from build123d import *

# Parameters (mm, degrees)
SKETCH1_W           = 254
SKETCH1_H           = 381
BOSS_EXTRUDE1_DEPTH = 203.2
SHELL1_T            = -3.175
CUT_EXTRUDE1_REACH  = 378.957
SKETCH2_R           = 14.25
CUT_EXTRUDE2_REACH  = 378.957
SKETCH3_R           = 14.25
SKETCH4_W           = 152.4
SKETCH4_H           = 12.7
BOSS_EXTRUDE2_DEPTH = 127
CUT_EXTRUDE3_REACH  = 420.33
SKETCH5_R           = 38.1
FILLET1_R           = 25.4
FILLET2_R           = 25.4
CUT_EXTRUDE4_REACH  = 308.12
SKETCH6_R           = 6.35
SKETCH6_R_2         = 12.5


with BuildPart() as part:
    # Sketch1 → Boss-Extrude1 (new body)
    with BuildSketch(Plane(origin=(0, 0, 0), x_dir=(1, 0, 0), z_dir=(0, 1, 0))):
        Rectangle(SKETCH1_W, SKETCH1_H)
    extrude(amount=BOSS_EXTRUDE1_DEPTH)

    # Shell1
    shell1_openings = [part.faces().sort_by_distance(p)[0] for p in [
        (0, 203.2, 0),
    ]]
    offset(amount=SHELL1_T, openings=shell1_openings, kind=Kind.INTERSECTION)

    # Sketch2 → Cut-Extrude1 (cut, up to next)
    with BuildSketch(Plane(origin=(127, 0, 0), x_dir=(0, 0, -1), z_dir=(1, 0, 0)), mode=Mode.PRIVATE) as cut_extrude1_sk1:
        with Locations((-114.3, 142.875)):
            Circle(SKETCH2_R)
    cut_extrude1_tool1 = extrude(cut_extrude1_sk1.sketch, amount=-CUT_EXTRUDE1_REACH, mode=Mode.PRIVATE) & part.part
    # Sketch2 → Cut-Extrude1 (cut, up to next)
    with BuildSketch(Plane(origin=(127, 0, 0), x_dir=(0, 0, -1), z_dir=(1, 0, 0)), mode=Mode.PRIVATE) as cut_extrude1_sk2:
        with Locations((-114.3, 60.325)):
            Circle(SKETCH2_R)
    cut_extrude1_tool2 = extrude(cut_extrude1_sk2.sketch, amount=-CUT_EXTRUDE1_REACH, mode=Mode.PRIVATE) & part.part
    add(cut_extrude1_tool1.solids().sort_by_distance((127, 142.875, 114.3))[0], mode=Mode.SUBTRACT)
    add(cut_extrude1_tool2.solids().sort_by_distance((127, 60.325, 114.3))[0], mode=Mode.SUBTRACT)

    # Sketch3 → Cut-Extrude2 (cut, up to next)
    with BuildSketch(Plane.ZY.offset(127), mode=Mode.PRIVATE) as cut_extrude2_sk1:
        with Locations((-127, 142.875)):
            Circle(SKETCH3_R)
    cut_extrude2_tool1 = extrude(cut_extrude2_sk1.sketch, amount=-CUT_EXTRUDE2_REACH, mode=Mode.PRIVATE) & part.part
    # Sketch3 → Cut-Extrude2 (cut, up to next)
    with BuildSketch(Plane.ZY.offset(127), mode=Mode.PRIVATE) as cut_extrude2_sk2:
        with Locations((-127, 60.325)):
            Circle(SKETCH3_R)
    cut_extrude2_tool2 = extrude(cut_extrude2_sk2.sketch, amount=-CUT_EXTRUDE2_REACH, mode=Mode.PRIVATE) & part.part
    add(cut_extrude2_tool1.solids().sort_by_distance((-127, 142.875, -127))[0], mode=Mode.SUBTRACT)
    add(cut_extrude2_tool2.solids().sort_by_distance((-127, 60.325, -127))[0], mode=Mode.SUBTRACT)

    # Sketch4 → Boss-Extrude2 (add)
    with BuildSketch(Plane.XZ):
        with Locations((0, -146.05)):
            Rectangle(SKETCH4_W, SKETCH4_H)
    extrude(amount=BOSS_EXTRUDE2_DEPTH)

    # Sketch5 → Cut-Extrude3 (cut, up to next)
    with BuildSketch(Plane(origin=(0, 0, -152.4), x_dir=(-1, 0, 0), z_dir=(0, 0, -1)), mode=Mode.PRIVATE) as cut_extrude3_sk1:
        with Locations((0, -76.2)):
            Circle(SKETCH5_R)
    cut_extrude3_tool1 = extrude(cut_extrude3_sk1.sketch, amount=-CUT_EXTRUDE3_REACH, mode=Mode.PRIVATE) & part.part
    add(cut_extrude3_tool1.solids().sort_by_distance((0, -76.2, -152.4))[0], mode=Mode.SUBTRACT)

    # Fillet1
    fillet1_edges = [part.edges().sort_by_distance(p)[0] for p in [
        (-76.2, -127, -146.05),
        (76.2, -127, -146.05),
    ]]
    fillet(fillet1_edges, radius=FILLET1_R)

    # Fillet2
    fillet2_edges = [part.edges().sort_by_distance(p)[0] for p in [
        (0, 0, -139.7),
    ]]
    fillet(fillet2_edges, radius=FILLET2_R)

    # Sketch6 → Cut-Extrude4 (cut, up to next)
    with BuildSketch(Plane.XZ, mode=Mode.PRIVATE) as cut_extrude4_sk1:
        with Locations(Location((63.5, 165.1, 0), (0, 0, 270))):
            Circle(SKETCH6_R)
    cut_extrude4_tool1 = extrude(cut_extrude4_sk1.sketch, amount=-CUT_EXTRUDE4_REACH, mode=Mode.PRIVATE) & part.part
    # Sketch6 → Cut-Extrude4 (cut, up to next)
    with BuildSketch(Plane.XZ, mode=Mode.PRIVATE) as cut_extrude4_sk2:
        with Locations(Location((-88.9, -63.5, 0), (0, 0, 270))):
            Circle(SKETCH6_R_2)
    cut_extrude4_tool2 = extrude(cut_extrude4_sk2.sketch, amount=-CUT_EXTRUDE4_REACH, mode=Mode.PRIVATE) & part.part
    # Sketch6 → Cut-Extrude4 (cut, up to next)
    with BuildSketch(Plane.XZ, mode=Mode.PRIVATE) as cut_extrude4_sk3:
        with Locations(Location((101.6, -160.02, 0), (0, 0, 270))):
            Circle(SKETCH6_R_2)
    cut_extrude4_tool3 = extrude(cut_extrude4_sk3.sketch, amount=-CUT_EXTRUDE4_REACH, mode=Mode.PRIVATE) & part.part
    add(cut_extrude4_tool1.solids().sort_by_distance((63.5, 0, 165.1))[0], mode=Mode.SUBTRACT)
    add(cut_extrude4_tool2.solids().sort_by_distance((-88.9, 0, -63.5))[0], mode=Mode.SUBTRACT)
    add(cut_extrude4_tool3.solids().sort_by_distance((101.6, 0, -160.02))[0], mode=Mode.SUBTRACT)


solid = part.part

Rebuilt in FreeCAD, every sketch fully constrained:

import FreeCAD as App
import Part
import Sketcher
Q = App.Units.Quantity


def edges_at(feature, points):
    """Names of the edges that pass closest to the given points."""
    edges = feature.Shape.Edges
    near = lambda p: min(range(len(edges)), key=lambda i: edges[i].distToShape(Part.Vertex(*p))[0])
    return sorted({f"Edge{near(p) + 1}" for p in points})


def faces_at(feature, points):
    """Names of the faces that lie closest to the given points."""
    faces = feature.Shape.Faces
    near = lambda p: min(range(len(faces)), key=lambda i: faces[i].distToShape(Part.Vertex(*p))[0])
    return sorted({f"Face{near(p) + 1}" for p in points})


def add_polygon(sketch, points):
    """Adds a closed chain of lines whose ends are joined by coincident constraints."""
    first, n = sketch.GeometryCount, len(points)
    for a, b in zip(points, points[1:] + points[:1]):
        sketch.addGeometry(Part.LineSegment(App.Vector(*a, 0), App.Vector(*b, 0)), False)
    for i in range(n):
        sketch.addConstraint(Sketcher.Constraint("Coincident", first + i, 2, first + (i + 1) % n, 1))

doc = App.newDocument("Part")
body = doc.addObject("PartDesign::Body", "Body")

# Sketch on XZ plane
sketch1 = body.newObject("Sketcher::SketchObject", "Sketch")
sketch1.AttachmentSupport = (doc.getObject("XZ_Plane"), [""])
sketch1.MapMode = "FlatFace"
add_polygon(sketch1, [(-127, -190), (-127, 190), (127, 190), (127, -190)])  # lines 0-3
sketch1.addConstraint([
    Sketcher.Constraint("Vertical", 0),
    Sketcher.Constraint("Horizontal", 1),
    Sketcher.Constraint("Vertical", 2),
    Sketcher.Constraint("Horizontal", 3),
    Sketcher.Constraint("Symmetric", 0, 2, 2, 2, -1, 1),
    Sketcher.Constraint("DistanceX", 1, 1, 1, 2, Q("10 in")),
    Sketcher.Constraint("DistanceY", 0, 1, 0, 2, Q("15 in")),
])
pad1 = body.newObject("PartDesign::Pad", "Pad")
pad1.Profile = sketch1
pad1.Length = Q("8 in")
pad1.Reversed = True
doc.recompute()

thickness = body.newObject("PartDesign::Thickness", "Thickness")
thickness.Base = (pad1, faces_at(pad1, [(0, 203.2, 0)]))
thickness.Value = Q("0.125 in")
thickness.Reversed = True
thickness.Join = "Intersection"

# Sketch on YZ plane
sketch2 = body.newObject("Sketcher::SketchObject", "Sketch001")
sketch2.AttachmentSupport = (doc.getObject("YZ_Plane"), [""])
sketch2.MapMode = "FlatFace"
sketch2.AttachmentOffset = App.Placement(App.Vector(0, 0, 5 * 25.4), App.Rotation())
sketch2.addGeometry(Part.Circle(App.Vector(143, 114, 0), App.Vector(0, 0, 1), 14), False)
sketch2.addConstraint([
    Sketcher.Constraint("DistanceY", -1, 1, 0, 3, Q("4.5 in")),
    Sketcher.Constraint("Diameter", 0, Q("28.5 mm")),
    Sketcher.Constraint("DistanceX", -1, 1, 0, 3, Q("5.625 in")),
])
pocket1 = body.newObject("PartDesign::Pocket", "Pocket")
pocket1.Profile = sketch2
pocket1.Type = "UpToFirst"

# Sketch on YZ plane
sketch3 = body.newObject("Sketcher::SketchObject", "Sketch002")
sketch3.AttachmentSupport = (doc.getObject("YZ_Plane"), [""])
sketch3.MapMode = "FlatFace"
sketch3.AttachmentOffset = App.Placement(App.Vector(0, 0, 5 * 25.4), App.Rotation())
sketch3.addGeometry(Part.Circle(App.Vector(60, 114, 0), App.Vector(0, 0, 1), 14), False)
sketch3.addConstraint([
    Sketcher.Constraint("DistanceY", -1, 1, 0, 3, Q("4.5 in")),
    Sketcher.Constraint("Diameter", 0, Q("28.5 mm")),
    Sketcher.Constraint("DistanceX", -1, 1, 0, 3, Q("2.375 in")),
])
pocket2 = body.newObject("PartDesign::Pocket", "Pocket001")
pocket2.Profile = sketch3
pocket2.Type = "UpToFirst"

# Sketch on YZ plane
sketch4 = body.newObject("Sketcher::SketchObject", "Sketch003")
sketch4.AttachmentSupport = (doc.getObject("YZ_Plane"), [""])
sketch4.MapMode = "FlatFace"
sketch4.AttachmentOffset = App.Placement(App.Vector(0, 0, -5 * 25.4), App.Rotation())
sketch4.addGeometry(Part.Circle(App.Vector(143, -127, 0), App.Vector(0, 0, 1), 14), False)
sketch4.addConstraint([
    Sketcher.Constraint("DistanceY", 0, 3, -1, 1, Q("5 in")),
    Sketcher.Constraint("Diameter", 0, Q("28.5 mm")),
    Sketcher.Constraint("DistanceX", -1, 1, 0, 3, Q("5.625 in")),
])
pocket3 = body.newObject("PartDesign::Pocket", "Pocket002")
pocket3.Profile = sketch4
pocket3.Type = "UpToFirst"
pocket3.Reversed = True

# Sketch on YZ plane
sketch5 = body.newObject("Sketcher::SketchObject", "Sketch004")
sketch5.AttachmentSupport = (doc.getObject("YZ_Plane"), [""])
sketch5.MapMode = "FlatFace"
sketch5.AttachmentOffset = App.Placement(App.Vector(0, 0, -5 * 25.4), App.Rotation())
sketch5.addGeometry(Part.Circle(App.Vector(60, -127, 0), App.Vector(0, 0, 1), 14), False)
sketch5.addConstraint([
    Sketcher.Constraint("DistanceY", 0, 3, -1, 1, Q("5 in")),
    Sketcher.Constraint("Diameter", 0, Q("28.5 mm")),
    Sketcher.Constraint("DistanceX", -1, 1, 0, 3, Q("2.375 in")),
])
pocket4 = body.newObject("PartDesign::Pocket", "Pocket003")
pocket4.Profile = sketch5
pocket4.Type = "UpToFirst"
pocket4.Reversed = True

# Sketch on XZ plane
sketch6 = body.newObject("Sketcher::SketchObject", "Sketch005")
sketch6.AttachmentSupport = (doc.getObject("XZ_Plane"), [""])
sketch6.MapMode = "FlatFace"
add_polygon(sketch6, [(-76, -140), (-76, -152), (76, -152), (76, -140)])  # lines 0-3
sketch6.addConstraint([
    Sketcher.Constraint("Vertical", 0),
    Sketcher.Constraint("Horizontal", 1),
    Sketcher.Constraint("Vertical", 2),
    Sketcher.Constraint("Horizontal", 3),
    Sketcher.Constraint("DistanceX", 1, 1, 1, 2, Q("6 in")),
    Sketcher.Constraint("DistanceY", 0, 2, 0, 1, Q("0.5 in")),
    Sketcher.Constraint("DistanceX", 0, 2, -1, 1, Q("3 in")),
    Sketcher.Constraint("DistanceY", 0, 2, -1, 1, Q("6 in")),
])
pad2 = body.newObject("PartDesign::Pad", "Pad001")
pad2.Profile = sketch6
pad2.Length = Q("5 in")

# Sketch on XY plane
sketch7 = body.newObject("Sketcher::SketchObject", "Sketch006")
sketch7.AttachmentSupport = (doc.getObject("XY_Plane"), [""])
sketch7.MapMode = "FlatFace"
sketch7.AttachmentOffset = App.Placement(App.Vector(0, 0, -6 * 25.4), App.Rotation())
sketch7.addGeometry(Part.Circle(App.Vector(0, -76, 0), App.Vector(0, 0, 1), 38), False)
sketch7.addConstraint([
    Sketcher.Constraint("PointOnObject", 0, 3, -2),
    Sketcher.Constraint("Diameter", 0, Q("3 in")),
    Sketcher.Constraint("DistanceY", 0, 3, -1, 1, Q("3 in")),
])
pocket5 = body.newObject("PartDesign::Pocket", "Pocket004")
pocket5.Profile = sketch7
pocket5.Type = "UpToFirst"
pocket5.Reversed = True
doc.recompute()

fillet = body.newObject("PartDesign::Fillet", "Fillet")
fillet.Base = (pocket5, edges_at(pocket5, [(-76.2, -127, -146.05), (76.2, -127, -146.05)]))
fillet.Radius = Q("1 in")
doc.recompute()

fillet2 = body.newObject("PartDesign::Fillet", "Fillet001")
fillet2.Base = (fillet, edges_at(fillet, [(0, 0, -139.7)]))
fillet2.Radius = Q("1 in")

# Sketch on XZ plane
sketch8 = body.newObject("Sketcher::SketchObject", "Sketch007")
sketch8.AttachmentSupport = (doc.getObject("XZ_Plane"), [""])
sketch8.MapMode = "FlatFace"
sketch8.addGeometry(Part.Circle(App.Vector(64, 165, 0), App.Vector(0, 0, 1), 6), False)
sketch8.addConstraint([
    Sketcher.Constraint("Diameter", 0, Q("0.5 in")),
    Sketcher.Constraint("DistanceX", -1, 1, 0, 3, Q("2.5 in")),
    Sketcher.Constraint("DistanceY", -1, 1, 0, 3, Q("6.5 in")),
])
pocket6 = body.newObject("PartDesign::Pocket", "Pocket005")
pocket6.Profile = sketch8
pocket6.Type = "UpToFirst"

# Sketch on XZ plane
sketch9 = body.newObject("Sketcher::SketchObject", "Sketch008")
sketch9.AttachmentSupport = (doc.getObject("XZ_Plane"), [""])
sketch9.MapMode = "FlatFace"
sketch9.addGeometry(Part.Circle(App.Vector(-89, -64, 0), App.Vector(0, 0, 1), 12), False)
sketch9.addConstraint([
    Sketcher.Constraint("DistanceX", 0, 3, -1, 1, Q("3.5 in")),
    Sketcher.Constraint("DistanceY", 0, 3, -1, 1, Q("2.5 in")),
    Sketcher.Constraint("Diameter", 0, Q("25 mm")),
])
pocket7 = body.newObject("PartDesign::Pocket", "Pocket006")
pocket7.Profile = sketch9
pocket7.Type = "UpToFirst"

# Sketch on XZ plane
sketch10 = body.newObject("Sketcher::SketchObject", "Sketch009")
sketch10.AttachmentSupport = (doc.getObject("XZ_Plane"), [""])
sketch10.MapMode = "FlatFace"
sketch10.addGeometry(Part.Circle(App.Vector(102, -160, 0), App.Vector(0, 0, 1), 12), False)
sketch10.addConstraint([
    Sketcher.Constraint("DistanceX", -1, 1, 0, 3, Q("4 in")),
    Sketcher.Constraint("DistanceY", 0, 3, -1, 1, Q("6.3 in")),
    Sketcher.Constraint("Diameter", 0, Q("25 mm")),
])
pocket8 = body.newObject("PartDesign::Pocket", "Pocket007")
pocket8.Profile = sketch10
pocket8.Type = "UpToFirst"

doc.recompute()
